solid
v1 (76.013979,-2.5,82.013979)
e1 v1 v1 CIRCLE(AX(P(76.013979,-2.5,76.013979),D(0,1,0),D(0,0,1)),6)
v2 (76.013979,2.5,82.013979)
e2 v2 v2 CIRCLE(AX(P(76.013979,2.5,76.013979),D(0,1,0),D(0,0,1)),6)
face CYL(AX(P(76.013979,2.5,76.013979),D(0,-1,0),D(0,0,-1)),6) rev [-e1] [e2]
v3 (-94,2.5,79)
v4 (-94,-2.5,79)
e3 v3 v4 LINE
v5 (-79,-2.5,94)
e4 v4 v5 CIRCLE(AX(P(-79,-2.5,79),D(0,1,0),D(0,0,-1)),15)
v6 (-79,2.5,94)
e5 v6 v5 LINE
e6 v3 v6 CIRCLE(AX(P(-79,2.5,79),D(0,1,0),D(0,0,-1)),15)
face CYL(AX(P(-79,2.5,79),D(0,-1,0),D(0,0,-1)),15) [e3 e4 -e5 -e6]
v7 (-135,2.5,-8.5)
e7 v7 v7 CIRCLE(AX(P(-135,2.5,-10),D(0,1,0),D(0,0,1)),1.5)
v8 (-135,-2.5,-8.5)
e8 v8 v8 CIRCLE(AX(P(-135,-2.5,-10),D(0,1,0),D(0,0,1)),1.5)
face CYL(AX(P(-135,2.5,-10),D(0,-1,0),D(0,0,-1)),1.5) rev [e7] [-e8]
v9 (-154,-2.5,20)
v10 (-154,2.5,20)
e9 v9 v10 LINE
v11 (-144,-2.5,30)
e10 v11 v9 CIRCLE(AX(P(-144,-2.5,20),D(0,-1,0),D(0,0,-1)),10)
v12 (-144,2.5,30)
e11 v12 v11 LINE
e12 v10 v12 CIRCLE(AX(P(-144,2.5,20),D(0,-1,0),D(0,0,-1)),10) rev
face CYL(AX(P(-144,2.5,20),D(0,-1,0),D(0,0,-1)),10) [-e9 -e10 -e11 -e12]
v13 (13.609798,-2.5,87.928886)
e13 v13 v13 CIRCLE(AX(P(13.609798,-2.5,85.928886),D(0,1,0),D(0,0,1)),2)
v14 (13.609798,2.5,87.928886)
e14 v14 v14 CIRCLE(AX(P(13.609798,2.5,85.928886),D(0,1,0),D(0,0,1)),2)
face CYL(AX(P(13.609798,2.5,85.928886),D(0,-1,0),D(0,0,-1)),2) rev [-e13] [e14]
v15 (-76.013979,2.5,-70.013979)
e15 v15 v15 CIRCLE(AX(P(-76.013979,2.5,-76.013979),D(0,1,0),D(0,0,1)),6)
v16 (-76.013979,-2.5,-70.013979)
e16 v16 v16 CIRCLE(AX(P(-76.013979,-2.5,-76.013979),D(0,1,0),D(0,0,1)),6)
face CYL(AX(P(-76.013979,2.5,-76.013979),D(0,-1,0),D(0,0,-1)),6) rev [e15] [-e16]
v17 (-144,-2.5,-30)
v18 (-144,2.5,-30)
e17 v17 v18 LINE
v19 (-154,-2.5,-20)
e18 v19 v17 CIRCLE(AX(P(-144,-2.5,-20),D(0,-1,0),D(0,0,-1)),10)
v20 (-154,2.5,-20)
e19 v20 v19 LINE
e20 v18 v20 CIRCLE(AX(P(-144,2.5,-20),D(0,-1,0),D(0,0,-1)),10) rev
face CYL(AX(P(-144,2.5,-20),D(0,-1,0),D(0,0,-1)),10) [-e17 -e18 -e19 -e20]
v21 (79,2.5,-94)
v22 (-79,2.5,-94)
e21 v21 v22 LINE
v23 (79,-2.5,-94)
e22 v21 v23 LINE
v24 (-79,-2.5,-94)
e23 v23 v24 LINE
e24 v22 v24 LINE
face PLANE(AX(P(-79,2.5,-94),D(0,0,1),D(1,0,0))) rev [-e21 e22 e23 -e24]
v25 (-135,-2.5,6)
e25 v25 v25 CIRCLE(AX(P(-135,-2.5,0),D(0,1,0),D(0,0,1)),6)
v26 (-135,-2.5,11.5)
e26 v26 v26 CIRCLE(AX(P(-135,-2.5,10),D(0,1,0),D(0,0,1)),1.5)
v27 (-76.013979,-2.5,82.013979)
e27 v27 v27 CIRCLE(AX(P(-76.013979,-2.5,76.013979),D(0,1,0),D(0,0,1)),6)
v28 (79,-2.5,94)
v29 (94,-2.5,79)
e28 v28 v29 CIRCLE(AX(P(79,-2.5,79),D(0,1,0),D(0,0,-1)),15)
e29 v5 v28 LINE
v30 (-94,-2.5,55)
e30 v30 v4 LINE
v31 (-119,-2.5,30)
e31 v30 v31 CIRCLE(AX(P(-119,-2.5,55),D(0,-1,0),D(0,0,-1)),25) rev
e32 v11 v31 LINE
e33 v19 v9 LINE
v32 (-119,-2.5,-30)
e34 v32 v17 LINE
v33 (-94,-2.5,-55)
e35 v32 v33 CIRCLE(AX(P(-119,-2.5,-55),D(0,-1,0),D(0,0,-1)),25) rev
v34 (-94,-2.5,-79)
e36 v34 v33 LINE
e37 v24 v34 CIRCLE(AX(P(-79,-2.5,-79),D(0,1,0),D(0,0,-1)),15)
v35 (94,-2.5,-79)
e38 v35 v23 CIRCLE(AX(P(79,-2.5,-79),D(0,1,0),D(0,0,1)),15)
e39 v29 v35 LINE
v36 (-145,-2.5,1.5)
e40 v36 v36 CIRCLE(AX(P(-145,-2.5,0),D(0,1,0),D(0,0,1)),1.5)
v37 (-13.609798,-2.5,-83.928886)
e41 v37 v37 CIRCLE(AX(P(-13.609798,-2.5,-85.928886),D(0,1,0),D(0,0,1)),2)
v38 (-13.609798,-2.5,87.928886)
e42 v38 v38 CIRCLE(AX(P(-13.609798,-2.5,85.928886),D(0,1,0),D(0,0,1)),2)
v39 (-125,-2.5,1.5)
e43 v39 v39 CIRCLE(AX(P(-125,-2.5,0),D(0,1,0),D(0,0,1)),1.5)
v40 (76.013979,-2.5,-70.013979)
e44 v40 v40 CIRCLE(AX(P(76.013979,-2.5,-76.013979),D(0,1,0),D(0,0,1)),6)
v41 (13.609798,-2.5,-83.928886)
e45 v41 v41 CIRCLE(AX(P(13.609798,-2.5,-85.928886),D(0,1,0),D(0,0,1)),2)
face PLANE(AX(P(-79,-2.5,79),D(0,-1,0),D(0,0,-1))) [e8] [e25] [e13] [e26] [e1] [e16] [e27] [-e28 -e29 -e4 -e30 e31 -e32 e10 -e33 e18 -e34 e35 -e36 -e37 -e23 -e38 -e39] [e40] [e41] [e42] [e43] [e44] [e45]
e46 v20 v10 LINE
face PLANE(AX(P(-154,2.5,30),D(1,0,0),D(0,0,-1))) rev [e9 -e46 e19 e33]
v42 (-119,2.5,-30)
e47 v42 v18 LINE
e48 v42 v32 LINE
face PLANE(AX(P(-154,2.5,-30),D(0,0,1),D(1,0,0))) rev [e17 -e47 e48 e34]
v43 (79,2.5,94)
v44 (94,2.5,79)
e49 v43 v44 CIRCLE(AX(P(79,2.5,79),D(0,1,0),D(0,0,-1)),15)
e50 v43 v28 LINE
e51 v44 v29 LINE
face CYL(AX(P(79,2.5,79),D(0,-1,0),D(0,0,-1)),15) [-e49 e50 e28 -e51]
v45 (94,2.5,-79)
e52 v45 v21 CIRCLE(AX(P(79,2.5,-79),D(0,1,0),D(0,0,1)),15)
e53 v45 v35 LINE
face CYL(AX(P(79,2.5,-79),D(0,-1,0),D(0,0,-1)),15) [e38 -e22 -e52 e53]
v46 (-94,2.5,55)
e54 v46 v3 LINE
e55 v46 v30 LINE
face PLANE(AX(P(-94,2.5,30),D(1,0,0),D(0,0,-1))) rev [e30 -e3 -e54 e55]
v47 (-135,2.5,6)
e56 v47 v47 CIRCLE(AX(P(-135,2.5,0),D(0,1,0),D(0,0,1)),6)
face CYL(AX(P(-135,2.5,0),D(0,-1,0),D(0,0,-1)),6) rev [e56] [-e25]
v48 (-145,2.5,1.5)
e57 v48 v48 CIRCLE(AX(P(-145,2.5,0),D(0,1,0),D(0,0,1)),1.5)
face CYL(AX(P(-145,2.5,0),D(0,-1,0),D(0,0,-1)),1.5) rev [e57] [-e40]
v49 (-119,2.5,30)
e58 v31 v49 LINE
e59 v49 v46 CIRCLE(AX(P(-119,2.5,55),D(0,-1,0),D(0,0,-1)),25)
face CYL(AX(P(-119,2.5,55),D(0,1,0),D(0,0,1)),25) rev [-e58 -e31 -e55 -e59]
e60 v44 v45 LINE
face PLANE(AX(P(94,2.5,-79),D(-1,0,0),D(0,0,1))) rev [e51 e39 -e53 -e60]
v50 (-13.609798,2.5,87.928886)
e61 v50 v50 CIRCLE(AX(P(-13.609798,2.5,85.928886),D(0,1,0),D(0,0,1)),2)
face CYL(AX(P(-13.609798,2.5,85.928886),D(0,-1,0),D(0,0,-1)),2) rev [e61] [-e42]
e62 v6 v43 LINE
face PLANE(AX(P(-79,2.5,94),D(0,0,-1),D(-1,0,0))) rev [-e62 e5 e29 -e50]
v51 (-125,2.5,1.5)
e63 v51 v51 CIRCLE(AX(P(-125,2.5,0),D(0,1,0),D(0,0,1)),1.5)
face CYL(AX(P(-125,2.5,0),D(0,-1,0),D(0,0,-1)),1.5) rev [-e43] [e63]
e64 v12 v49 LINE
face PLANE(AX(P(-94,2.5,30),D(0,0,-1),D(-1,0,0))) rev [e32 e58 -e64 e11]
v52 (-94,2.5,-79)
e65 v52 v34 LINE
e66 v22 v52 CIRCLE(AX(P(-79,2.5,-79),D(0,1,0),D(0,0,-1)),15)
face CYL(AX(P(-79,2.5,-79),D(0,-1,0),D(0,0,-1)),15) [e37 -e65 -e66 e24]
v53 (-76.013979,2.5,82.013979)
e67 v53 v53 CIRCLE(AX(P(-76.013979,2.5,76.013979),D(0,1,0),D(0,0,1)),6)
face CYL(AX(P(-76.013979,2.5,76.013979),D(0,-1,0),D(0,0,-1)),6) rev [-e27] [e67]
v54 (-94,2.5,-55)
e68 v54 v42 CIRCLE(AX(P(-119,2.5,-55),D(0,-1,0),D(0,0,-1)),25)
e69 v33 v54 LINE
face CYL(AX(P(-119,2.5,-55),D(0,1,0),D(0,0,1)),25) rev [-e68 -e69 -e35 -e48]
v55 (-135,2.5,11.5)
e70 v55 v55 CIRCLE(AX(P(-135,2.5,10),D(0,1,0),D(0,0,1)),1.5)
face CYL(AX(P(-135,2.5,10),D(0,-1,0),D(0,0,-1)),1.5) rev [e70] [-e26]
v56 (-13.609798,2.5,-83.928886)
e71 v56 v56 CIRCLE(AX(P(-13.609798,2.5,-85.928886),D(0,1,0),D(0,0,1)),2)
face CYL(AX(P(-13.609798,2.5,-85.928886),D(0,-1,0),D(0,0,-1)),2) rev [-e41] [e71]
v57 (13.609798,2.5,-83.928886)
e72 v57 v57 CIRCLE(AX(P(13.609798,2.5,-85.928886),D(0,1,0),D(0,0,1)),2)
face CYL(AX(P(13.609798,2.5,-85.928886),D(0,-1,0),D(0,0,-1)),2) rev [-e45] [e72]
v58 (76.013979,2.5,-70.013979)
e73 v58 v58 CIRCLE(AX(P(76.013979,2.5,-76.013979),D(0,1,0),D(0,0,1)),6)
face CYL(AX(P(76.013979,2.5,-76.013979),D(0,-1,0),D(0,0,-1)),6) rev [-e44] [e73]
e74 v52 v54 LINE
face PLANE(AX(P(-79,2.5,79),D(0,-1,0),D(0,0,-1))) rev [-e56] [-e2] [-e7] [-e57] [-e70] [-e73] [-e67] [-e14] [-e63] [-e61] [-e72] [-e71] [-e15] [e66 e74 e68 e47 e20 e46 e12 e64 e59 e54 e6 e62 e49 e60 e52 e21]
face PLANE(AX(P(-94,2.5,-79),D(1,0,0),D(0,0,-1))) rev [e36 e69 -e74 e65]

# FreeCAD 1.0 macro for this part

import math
import FreeCAD as App
import Part
import Sketcher

V = App.Vector


def edges_at(feature, points):
    """Names of the edges that pass closest to the given points."""
    edges = feature.Shape.Edges
    near = lambda p: min(range(len(edges)), key=lambda i: edges[i].distToShape(Part.Vertex(*p))[0])
    return sorted({f"Edge{near(p) + 1}" for p in points})

doc = App.newDocument("Part")
body = doc.addObject("PartDesign::Body", "Body")

sketch1 = body.newObject("Sketcher::SketchObject", "Sketch")
sketch1.AttachmentSupport = (doc.getObject("XZ_Plane"), [""])
sketch1.MapMode = "FlatFace"
sketch1.addGeometry(Part.LineSegment(V(79, -94, 0), V(-79, -94, 0)), False)
sketch1.addGeometry(Part.ArcOfCircle(Part.Circle(V(-79, -79, 0), V(0, 0, 1), 15), math.radians(180), math.radians(270)), False)
sketch1.addGeometry(Part.LineSegment(V(-94, -79, 0), V(-94, -30, 0)), False)
sketch1.addGeometry(Part.LineSegment(V(-94, -30, 0), V(-154, -30, 0)), False)
sketch1.addGeometry(Part.LineSegment(V(-154, -30, 0), V(-154, 30, 0)), False)
sketch1.addGeometry(Part.LineSegment(V(-154, 30, 0), V(-94, 30, 0)), False)
sketch1.addGeometry(Part.LineSegment(V(-94, 30, 0), V(-94, 79, 0)), False)
sketch1.addGeometry(Part.ArcOfCircle(Part.Circle(V(-79, 79, 0), V(0, 0, 1), 15), math.radians(90), math.radians(180)), False)
sketch1.addGeometry(Part.LineSegment(V(-79, 94, 0), V(79, 94, 0)), False)
sketch1.addGeometry(Part.ArcOfCircle(Part.Circle(V(79, 79, 0), V(0, 0, 1), 15), math.radians(0), math.radians(90)), False)
sketch1.addGeometry(Part.LineSegment(V(94, 79, 0), V(94, -79, 0)), False)
sketch1.addGeometry(Part.ArcOfCircle(Part.Circle(V(79, -79, 0), V(0, 0, 1), 15), math.radians(-90), math.radians(0)), False)
sketch1.addGeometry(Part.Circle(V(76, 76, 0), V(0, 0, 1), 6), False)
sketch1.addGeometry(Part.Circle(V(13.6, 85.9, 0), V(0, 0, 1), 2), False)
sketch1.addGeometry(Part.Circle(V(-13.6, 85.9, 0), V(0, 0, 1), 2), False)
sketch1.addGeometry(Part.Circle(V(-76, 76, 0), V(0, 0, 1), 6), False)
sketch1.addGeometry(Part.Circle(V(-135, 10, 0), V(0, 0, 1), 1.5), False)
sketch1.addGeometry(Part.Circle(V(76, -76, 0), V(0, 0, 1), 6), False)
sketch1.addGeometry(Part.Circle(V(13.6, -85.9, 0), V(0, 0, 1), 2), False)
sketch1.addGeometry(Part.Circle(V(-13.6, -85.9, 0), V(0, 0, 1), 2), False)
sketch1.addGeometry(Part.Circle(V(-125, 0, 0), V(0, 0, 1), 1.5), False)
sketch1.addGeometry(Part.Circle(V(-135, 0, 0), V(0, 0, 1), 6), False)
sketch1.addGeometry(Part.Circle(V(-145, 0, 0), V(0, 0, 1), 1.5), False)
sketch1.addGeometry(Part.Circle(V(-135, -10, 0), V(0, 0, 1), 1.5), False)
sketch1.addGeometry(Part.Circle(V(-76, -76, 0), V(0, 0, 1), 6), False)
sketch1.addConstraint(Sketcher.Constraint("Tangent", 0, 2, 1, 2))
sketch1.addConstraint(Sketcher.Constraint("Tangent", 1, 1, 2, 1))
sketch1.addConstraint(Sketcher.Constraint("Coincident", 2, 2, 3, 1))
sketch1.addConstraint(Sketcher.Constraint("Coincident", 3, 2, 4, 1))
sketch1.addConstraint(Sketcher.Constraint("Coincident", 4, 2, 5, 1))
sketch1.addConstraint(Sketcher.Constraint("Coincident", 5, 2, 6, 1))
sketch1.addConstraint(Sketcher.Constraint("Tangent", 6, 2, 7, 2))
sketch1.addConstraint(Sketcher.Constraint("Tangent", 7, 1, 8, 1))
sketch1.addConstraint(Sketcher.Constraint("Tangent", 8, 2, 9, 2))
sketch1.addConstraint(Sketcher.Constraint("Tangent", 9, 1, 10, 1))
sketch1.addConstraint(Sketcher.Constraint("Tangent", 10, 2, 11, 2))
sketch1.addConstraint(Sketcher.Constraint("Tangent", 11, 1, 0, 1))
sketch1.addConstraint(Sketcher.Constraint("Horizontal", 0))
sketch1.addConstraint(Sketcher.Constraint("Vertical", 2))
sketch1.addConstraint(Sketcher.Constraint("Horizontal", 3))
sketch1.addConstraint(Sketcher.Constraint("Vertical", 4))
sketch1.addConstraint(Sketcher.Constraint("Horizontal", 5))
sketch1.addConstraint(Sketcher.Constraint("Vertical", 6))
sketch1.addConstraint(Sketcher.Constraint("Horizontal", 8))
sketch1.addConstraint(Sketcher.Constraint("Vertical", 10))
sketch1.addConstraint(Sketcher.Constraint("Equal", 1, 7))
sketch1.addConstraint(Sketcher.Constraint("Equal", 7, 9))
sketch1.addConstraint(Sketcher.Constraint("Equal", 9, 11))
sketch1.addConstraint(Sketcher.Constraint("Equal", 13, 14))
sketch1.addConstraint(Sketcher.Constraint("Equal", 12, 15))
sketch1.addConstraint(Sketcher.Constraint("Equal", 15, 17))
sketch1.addConstraint(Sketcher.Constraint("Equal", 14, 18))
sketch1.addConstraint(Sketcher.Constraint("Equal", 18, 19))
sketch1.addConstraint(Sketcher.Constraint("Equal", 16, 20))
sketch1.addConstraint(Sketcher.Constraint("Equal", 17, 21))
sketch1.addConstraint(Sketcher.Constraint("Equal", 20, 22))
sketch1.addConstraint(Sketcher.Constraint("Equal", 22, 23))
sketch1.addConstraint(Sketcher.Constraint("Equal", 21, 24))
sketch1.addConstraint(Sketcher.Constraint("Symmetric", 1, 3, 9, 3, -1, 1))
sketch1.addConstraint(Sketcher.Constraint("Symmetric", 15, 3, 17, 3, -1, 1))
sketch1.addConstraint(Sketcher.Constraint("Symmetric", 14, 3, 18, 3, -1, 1))
sketch1.addConstraint(Sketcher.Constraint("Symmetric", 13, 3, 19, 3, -1, 1))
sketch1.addConstraint(Sketcher.Constraint("Symmetric", 12, 3, 24, 3, -1, 1))
sketch1.addConstraint(Sketcher.Constraint("Symmetric", 13, 3, 14, 3, -2))
sketch1.addConstraint(Sketcher.Constraint("Symmetric", 12, 3, 15, 3, -2))
sketch1.addConstraint(Sketcher.Constraint("Symmetric", 16, 3, 23, 3, -1))
sketch1.addConstraint(Sketcher.Constraint("Symmetric", 2, 2, 5, 2, -1))
sketch1.addConstraint(Sketcher.Constraint("PointOnObject", 20, 3, -1))
sketch1.addConstraint(Sketcher.Constraint("PointOnObject", 21, 3, -1))
sketch1.addConstraint(Sketcher.Constraint("PointOnObject", 22, 3, -1))
sketch1.addConstraint(Sketcher.Constraint("Vertical", 16, 3, 21, 3))
sketch1.addConstraint(Sketcher.Constraint("Equal", 5, 4))
sketch1.addConstraint(Sketcher.Constraint("Equal", 8, 10))
sketch1.addConstraint(Sketcher.Constraint("Diameter", 12, 12.0))
sketch1.addConstraint(Sketcher.Constraint("Diameter", 13, 4.0))
sketch1.addConstraint(Sketcher.Constraint("Diameter", 16, 3.0))
sketch1.addConstraint(Sketcher.Constraint("Radius", 1, 15.0))
sketch1.addConstraint(Sketcher.Constraint("DistanceX", 0, 2, 0, 1, 158.0))
sketch1.addConstraint(Sketcher.Constraint("DistanceX", 3, 2, 3, 1, 60.0))
sketch1.addConstraint(Sketcher.Constraint("DistanceX", 16, 3, -1, 1, 135.0))
sketch1.addConstraint(Sketcher.Constraint("DistanceY", -1, 1, 16, 3, 10.0))
sketch1.addConstraint(Sketcher.Constraint("DistanceX", 20, 3, -1, 1, 125.0))
sketch1.addConstraint(Sketcher.Constraint("DistanceX", 22, 3, -1, 1, 145.0))
sketch1.addConstraint(Sketcher.Constraint("DistanceX", -1, 1, 13, 3, 13.609798))
sketch1.addConstraint(Sketcher.Constraint("DistanceX", -1, 1, 12, 3, 76.013979))
sketch1.addConstraint(Sketcher.Constraint("DistanceY", -1, 1, 12, 3, 76.013979))
sketch1.addConstraint(Sketcher.Constraint("DistanceY", 18, 3, 13, 3, 171.857771))
pad1 = body.newObject("PartDesign::Pad", "Pad")
pad1.Profile = sketch1
pad1.Length = 5
pad1.Midplane = True
doc.recompute()

fillet = body.newObject("PartDesign::Fillet", "Fillet")
fillet.Base = (pad1, edges_at(pad1, [(-94, 0, 30), (-94, 0, -30)]))
fillet.Radius = 25
doc.recompute()

fillet2 = body.newObject("PartDesign::Fillet", "Fillet001")
fillet2.Base = (fillet, edges_at(fillet, [(-154, 0, 30), (-154, 0, -30)]))
fillet2.Radius = 10

doc.recompute()
